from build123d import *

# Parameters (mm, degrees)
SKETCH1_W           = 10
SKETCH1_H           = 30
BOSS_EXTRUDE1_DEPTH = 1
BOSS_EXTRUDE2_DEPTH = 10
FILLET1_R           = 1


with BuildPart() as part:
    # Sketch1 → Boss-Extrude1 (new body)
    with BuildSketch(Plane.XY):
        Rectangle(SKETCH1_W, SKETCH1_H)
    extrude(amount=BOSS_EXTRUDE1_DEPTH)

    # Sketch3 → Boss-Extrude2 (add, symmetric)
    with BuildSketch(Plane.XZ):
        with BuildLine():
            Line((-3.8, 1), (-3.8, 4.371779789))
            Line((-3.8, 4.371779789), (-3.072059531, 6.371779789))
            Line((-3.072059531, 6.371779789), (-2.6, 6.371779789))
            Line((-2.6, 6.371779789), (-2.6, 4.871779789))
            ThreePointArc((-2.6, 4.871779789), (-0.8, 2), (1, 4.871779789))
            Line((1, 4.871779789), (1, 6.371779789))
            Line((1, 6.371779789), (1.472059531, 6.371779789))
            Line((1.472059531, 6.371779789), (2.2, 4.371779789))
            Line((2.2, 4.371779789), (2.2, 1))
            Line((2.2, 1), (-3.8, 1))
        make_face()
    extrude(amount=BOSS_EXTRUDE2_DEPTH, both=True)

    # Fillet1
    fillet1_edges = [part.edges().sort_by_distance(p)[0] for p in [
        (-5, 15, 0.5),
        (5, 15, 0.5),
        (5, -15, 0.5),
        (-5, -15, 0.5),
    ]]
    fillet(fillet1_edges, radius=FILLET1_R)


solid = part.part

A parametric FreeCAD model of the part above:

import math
import FreeCAD as App
import Part
import Sketcher
Q = App.Units.Quantity


def edges_at(feature, points):
    """Names of the edges that pass closest to the given points."""
    edges = feature.Shape.Edges
    near = lambda p: min(range(len(edges)), key=lambda i: edges[i].distToShape(Part.Vertex(*p))[0])
    return sorted({f"Edge{near(p) + 1}" for p in points})

doc = App.newDocument("Part")
params = doc.addObject("Spreadsheet::Sheet", "Params")
for row, (alias, value) in enumerate([
    ("sketch1_width", "10 mm"),
    ("sketch1_height", "30 mm"),
    ("pad1_length", "1 mm"),
    ("sketch2_radius", "2 mm"),
    ("sketch2_width", "6 mm"),
    ("sketch2_height", "1.5 mm"),
    ("pad2_length", "20 mm"),
    ("fillet_radius", "1 mm"),
], start=1):
    params.set(f"A{row}", alias)
    params.set(f"B{row}", "=" + value)
    params.setAlias(f"B{row}", alias)

body = doc.addObject("PartDesign::Body", "Body")

# Sketch on XY plane
sketch1 = body.newObject("Sketcher::SketchObject", "Sketch")
sketch1.AttachmentSupport = (doc.getObject("XY_Plane"), [""])
sketch1.MapMode = "FlatFace"
sketch1.addGeometry([
    Part.LineSegment(App.Vector(-5, 15, 0), App.Vector(-5, -15, 0)),
    Part.LineSegment(App.Vector(-5, -15, 0), App.Vector(5, -15, 0)),
    Part.LineSegment(App.Vector(5, -15, 0), App.Vector(5, 15, 0)),
    Part.LineSegment(App.Vector(5, 15, 0), App.Vector(-5, 15, 0)),
], False)
sketch1.addConstraint([
    Sketcher.Constraint("Coincident", 0, 2, 1, 1),
    Sketcher.Constraint("Coincident", 1, 2, 2, 1),
    Sketcher.Constraint("Coincident", 2, 2, 3, 1),
    Sketcher.Constraint("Coincident", 3, 2, 0, 1),
    Sketcher.Constraint("Vertical", 0),
    Sketcher.Constraint("Horizontal", 1),
    Sketcher.Constraint("Vertical", 2),
    Sketcher.Constraint("Horizontal", 3),
    Sketcher.Constraint("Symmetric", 0, 2, 2, 2, -1, 1),
    Sketcher.Constraint("DistanceX", 1, 1, 1, 2, 10.0),
    Sketcher.Constraint("DistanceY", 0, 2, 0, 1, 30.0),
])
sketch1.setExpression("Constraints[9]", "Params.sketch1_width")
sketch1.setExpression("Constraints[10]", "Params.sketch1_height")
pad1 = body.newObject("PartDesign::Pad", "Pad")
pad1.Profile = sketch1
pad1.setExpression("Length", "Params.pad1_length")

# Sketch on XZ plane
sketch2 = body.newObject("Sketcher::SketchObject", "Sketch001")
sketch2.AttachmentSupport = (doc.getObject("XZ_Plane"), [""])
sketch2.MapMode = "FlatFace"
sketch2.addGeometry([
    Part.LineSegment(App.Vector(-3.8, 4.37, 0), App.Vector(-3.8, 1, 0)),  # 0
    Part.LineSegment(App.Vector(-3.8, 1, 0), App.Vector(2.2, 1, 0)),  # 1
    Part.LineSegment(App.Vector(2.2, 1, 0), App.Vector(2.2, 4.37, 0)),  # 2
    Part.LineSegment(App.Vector(2.2, 4.37, 0), App.Vector(1.47, 6.37, 0)),  # 3
    Part.LineSegment(App.Vector(1.47, 6.37, 0), App.Vector(1, 6.37, 0)),  # 4
    Part.LineSegment(App.Vector(1, 6.37, 0), App.Vector(1, 4.87, 0)),  # 5
    Part.ArcOfCircle(Part.Circle(App.Vector(-0.8, 4, 0), App.Vector(0, 0, 1), 2), math.radians(154), math.radians(386)),  # 6
    Part.LineSegment(App.Vector(-2.6, 4.87, 0), App.Vector(-2.6, 6.37, 0)),  # 7
    Part.LineSegment(App.Vector(-2.6, 6.37, 0), App.Vector(-3.07, 6.37, 0)),  # 8
    Part.LineSegment(App.Vector(-3.07, 6.37, 0), App.Vector(-3.8, 4.37, 0)),  # 9
], False)
sketch2.addConstraint([
    Sketcher.Constraint("Coincident", 0, 2, 1, 1),
    Sketcher.Constraint("Coincident", 1, 2, 2, 1),
    Sketcher.Constraint("Coincident", 2, 2, 3, 1),
    Sketcher.Constraint("Coincident", 3, 2, 4, 1),
    Sketcher.Constraint("Coincident", 4, 2, 5, 1),
    Sketcher.Constraint("Coincident", 5, 2, 6, 2),
    Sketcher.Constraint("Coincident", 6, 1, 7, 1),
    Sketcher.Constraint("Coincident", 7, 2, 8, 1),
    Sketcher.Constraint("Coincident", 8, 2, 9, 1),
    Sketcher.Constraint("Coincident", 9, 2, 0, 1),
    Sketcher.Constraint("Vertical", 0),
    Sketcher.Constraint("Horizontal", 1),
    Sketcher.Constraint("Vertical", 2),
    Sketcher.Constraint("Horizontal", 4),
    Sketcher.Constraint("Vertical", 5),
    Sketcher.Constraint("Vertical", 7),
    Sketcher.Constraint("Horizontal", 8),
    Sketcher.Constraint("Horizontal", 5, 2, 6, 1),
    Sketcher.Constraint("Horizontal", 4, 2, 7, 2),
    Sketcher.Constraint("Horizontal", 2, 2, 9, 2),
    Sketcher.Constraint("Equal", 4, 8),
    Sketcher.Constraint("Equal", 3, 9),
    Sketcher.Constraint("Radius", 6, 2.0),
    Sketcher.Constraint("DistanceX", 1, 1, 1, 2, 6.0),
    Sketcher.Constraint("Angle", 3, Q("110 deg")),
    Sketcher.Constraint("DistanceY", 5, 2, 5, 1, 1.5),
    Sketcher.Constraint("DistanceY", -1, 1, 6, 3, 4.0),
    Sketcher.Constraint("DistanceY", -1, 1, 0, 2, 1.0),
    Sketcher.Constraint("DistanceX", -1, 1, 4, 2, 1.0),
    Sketcher.Constraint("DistanceY", 2, 2, 3, 2, 2.0),
    Sketcher.Constraint("DistanceX", 6, 3, -1, 1, 0.8),
])
sketch2.setExpression("Constraints[22]", "Params.sketch2_radius")
sketch2.setExpression("Constraints[23]", "Params.sketch2_width")
sketch2.setExpression("Constraints[25]", "Params.sketch2_height")
pad2 = body.newObject("PartDesign::Pad", "Pad001")
pad2.Profile = sketch2
pad2.setExpression("Length", "Params.pad2_length")
pad2.Midplane = True
doc.recompute()

fillet = body.newObject("PartDesign::Fillet", "Fillet")
fillet.Base = (pad2, edges_at(pad2, [
    (-5, 15, 0.5),
    (5, 15, 0.5),
    (5, -15, 0.5),
    (-5, -15, 0.5),
]))
fillet.setExpression("Radius", "Params.fillet_radius")

doc.recompute()
